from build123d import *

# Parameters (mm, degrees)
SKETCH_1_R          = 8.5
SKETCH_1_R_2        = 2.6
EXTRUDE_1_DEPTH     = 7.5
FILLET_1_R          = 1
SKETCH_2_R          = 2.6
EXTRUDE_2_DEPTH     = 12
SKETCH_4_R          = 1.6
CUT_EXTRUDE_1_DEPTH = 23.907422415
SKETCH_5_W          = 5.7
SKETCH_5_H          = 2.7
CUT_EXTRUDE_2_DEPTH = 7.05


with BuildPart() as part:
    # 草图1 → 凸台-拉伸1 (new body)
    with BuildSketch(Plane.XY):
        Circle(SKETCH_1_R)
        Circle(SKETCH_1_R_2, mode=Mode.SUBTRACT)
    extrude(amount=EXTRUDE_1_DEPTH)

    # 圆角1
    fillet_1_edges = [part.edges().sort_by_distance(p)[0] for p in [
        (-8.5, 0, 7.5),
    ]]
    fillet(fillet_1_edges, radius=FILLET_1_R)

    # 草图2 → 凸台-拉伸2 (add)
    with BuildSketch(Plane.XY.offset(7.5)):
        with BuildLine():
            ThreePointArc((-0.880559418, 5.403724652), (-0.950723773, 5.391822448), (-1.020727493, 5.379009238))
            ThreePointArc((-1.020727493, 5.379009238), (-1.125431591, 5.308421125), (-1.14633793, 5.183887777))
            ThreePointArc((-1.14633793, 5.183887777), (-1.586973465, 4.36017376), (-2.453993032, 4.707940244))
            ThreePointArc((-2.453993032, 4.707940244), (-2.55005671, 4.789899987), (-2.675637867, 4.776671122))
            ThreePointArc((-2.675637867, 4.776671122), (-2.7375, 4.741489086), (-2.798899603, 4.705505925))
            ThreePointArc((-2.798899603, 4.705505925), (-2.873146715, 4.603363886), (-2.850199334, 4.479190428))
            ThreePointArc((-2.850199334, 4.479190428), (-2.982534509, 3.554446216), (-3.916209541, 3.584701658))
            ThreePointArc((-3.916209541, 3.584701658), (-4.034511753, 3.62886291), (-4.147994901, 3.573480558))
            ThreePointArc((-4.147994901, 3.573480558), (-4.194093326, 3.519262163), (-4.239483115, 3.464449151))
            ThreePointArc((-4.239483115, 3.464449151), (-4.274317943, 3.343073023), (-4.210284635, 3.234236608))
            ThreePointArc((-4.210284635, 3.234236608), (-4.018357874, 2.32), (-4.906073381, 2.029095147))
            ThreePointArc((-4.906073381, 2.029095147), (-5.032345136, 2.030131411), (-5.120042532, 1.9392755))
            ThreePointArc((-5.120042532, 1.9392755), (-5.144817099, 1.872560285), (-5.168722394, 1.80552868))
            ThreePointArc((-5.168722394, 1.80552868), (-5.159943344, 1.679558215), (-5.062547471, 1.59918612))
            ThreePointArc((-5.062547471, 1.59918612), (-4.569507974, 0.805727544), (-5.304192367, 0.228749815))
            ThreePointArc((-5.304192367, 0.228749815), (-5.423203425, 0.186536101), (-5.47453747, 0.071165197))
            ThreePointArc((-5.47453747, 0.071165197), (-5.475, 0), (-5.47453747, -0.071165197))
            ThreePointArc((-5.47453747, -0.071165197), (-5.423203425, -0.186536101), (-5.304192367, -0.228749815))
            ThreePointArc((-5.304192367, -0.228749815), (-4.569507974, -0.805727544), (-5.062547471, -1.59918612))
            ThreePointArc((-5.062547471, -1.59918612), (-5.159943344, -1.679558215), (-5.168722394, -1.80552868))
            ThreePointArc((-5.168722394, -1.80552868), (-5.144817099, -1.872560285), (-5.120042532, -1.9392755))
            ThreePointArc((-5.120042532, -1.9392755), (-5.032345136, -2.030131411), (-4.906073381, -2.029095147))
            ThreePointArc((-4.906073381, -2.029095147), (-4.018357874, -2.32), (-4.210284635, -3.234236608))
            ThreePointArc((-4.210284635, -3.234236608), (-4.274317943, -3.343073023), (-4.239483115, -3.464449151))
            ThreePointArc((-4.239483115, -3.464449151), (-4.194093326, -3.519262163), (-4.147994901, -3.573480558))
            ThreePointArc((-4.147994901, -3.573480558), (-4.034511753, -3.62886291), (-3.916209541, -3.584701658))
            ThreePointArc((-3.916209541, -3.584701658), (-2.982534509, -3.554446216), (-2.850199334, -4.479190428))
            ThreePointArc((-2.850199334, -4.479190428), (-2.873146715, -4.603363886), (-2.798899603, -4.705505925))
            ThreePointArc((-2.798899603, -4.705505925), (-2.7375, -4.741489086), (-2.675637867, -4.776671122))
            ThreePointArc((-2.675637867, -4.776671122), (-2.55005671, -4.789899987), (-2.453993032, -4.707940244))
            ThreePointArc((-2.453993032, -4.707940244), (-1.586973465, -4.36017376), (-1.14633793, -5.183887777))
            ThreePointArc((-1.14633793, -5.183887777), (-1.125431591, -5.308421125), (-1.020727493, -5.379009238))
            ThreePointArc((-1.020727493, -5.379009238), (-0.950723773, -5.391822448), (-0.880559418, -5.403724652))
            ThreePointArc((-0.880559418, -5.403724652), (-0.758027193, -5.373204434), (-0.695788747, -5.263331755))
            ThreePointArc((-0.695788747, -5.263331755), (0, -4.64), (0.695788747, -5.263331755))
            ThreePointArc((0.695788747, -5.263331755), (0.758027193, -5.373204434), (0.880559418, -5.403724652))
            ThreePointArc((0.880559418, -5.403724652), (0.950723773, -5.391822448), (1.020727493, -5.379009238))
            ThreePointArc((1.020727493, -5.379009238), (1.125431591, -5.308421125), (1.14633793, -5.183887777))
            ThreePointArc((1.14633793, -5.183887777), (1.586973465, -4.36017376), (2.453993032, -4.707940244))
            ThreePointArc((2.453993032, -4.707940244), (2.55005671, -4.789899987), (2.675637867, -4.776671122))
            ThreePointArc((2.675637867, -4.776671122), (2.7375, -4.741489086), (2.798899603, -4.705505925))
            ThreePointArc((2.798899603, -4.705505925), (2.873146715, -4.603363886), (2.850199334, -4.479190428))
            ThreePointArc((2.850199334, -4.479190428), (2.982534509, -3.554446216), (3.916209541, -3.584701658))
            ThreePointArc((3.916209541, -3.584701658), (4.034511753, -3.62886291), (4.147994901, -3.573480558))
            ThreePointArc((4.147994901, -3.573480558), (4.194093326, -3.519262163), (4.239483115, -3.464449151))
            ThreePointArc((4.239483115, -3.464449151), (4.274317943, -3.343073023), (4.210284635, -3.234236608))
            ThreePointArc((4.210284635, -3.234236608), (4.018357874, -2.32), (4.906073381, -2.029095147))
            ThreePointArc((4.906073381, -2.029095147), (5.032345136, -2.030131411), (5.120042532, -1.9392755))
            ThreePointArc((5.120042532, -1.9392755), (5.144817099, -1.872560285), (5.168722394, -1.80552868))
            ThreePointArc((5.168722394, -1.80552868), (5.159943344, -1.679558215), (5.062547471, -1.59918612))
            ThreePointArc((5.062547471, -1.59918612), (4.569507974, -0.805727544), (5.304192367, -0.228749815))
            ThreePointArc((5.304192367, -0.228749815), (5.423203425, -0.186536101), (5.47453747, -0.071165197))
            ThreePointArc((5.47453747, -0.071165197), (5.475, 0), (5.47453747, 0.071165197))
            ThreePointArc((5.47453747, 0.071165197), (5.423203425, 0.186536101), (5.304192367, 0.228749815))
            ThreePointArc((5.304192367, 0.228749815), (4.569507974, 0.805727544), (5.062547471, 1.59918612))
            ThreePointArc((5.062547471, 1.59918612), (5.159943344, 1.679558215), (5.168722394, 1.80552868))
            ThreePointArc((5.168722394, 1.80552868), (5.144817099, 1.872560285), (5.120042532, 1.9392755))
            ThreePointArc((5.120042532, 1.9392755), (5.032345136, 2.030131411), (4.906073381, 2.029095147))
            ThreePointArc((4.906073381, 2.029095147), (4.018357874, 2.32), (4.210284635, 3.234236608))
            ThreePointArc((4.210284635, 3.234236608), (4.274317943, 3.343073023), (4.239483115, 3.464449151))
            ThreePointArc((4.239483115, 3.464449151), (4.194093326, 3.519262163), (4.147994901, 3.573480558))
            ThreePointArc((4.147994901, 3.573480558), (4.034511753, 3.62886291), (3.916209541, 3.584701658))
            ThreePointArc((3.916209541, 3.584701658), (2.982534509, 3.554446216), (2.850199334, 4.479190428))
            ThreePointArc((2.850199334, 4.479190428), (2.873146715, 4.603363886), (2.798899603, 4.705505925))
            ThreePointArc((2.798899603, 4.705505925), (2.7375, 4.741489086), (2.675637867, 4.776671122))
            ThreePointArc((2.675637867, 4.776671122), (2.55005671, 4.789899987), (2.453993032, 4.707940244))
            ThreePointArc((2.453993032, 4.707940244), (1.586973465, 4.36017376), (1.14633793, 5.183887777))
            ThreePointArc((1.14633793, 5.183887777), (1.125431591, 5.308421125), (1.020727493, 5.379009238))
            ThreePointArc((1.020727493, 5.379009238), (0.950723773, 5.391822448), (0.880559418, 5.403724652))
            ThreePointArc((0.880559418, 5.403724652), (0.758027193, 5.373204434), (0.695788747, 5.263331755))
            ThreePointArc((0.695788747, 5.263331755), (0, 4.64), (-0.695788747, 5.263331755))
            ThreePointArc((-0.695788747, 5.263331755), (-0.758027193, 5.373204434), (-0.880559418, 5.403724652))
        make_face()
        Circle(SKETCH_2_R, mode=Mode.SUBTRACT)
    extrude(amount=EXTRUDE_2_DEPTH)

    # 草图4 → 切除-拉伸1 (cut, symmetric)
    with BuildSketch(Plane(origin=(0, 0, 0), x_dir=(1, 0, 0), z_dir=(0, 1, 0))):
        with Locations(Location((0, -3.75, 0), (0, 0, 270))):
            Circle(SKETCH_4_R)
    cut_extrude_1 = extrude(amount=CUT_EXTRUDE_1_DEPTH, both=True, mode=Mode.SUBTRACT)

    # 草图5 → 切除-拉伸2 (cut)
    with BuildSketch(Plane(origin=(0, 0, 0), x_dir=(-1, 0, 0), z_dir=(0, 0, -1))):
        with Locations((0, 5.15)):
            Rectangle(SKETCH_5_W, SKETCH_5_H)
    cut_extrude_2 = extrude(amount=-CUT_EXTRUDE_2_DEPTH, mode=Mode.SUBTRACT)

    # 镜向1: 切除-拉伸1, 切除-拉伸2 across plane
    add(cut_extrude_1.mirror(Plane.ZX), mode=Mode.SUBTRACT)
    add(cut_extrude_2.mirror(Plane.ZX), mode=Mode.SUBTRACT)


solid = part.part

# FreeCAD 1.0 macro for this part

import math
import FreeCAD as App
import Part
import Sketcher

V = App.Vector
Q = App.Units.Quantity


def edges_at(feature, points):
    """Names of the edges that pass closest to the given points."""
    edges = feature.Shape.Edges
    near = lambda p: min(range(len(edges)), key=lambda i: edges[i].distToShape(Part.Vertex(*p))[0])
    return sorted({f"Edge{near(p) + 1}" for p in points})

doc = App.newDocument("Part")
body = doc.addObject("PartDesign::Body", "Body")

# Sketch on XY plane
sketch1 = doc.addObject("Sketcher::SketchObject", "Sketch")
body.addObject(sketch1)
sketch1.AttachmentSupport = (doc.XY_Plane, [""])
sketch1.MapMode = "FlatFace"
sketch1.addGeometry(Part.Circle(V(0, 0, 0), V(0, 0, 1), 8.5), False)
sketch1.addGeometry(Part.Circle(V(0, 0, 0), V(0, 0, 1), 2.6), False)
sketch1.addConstraint(Sketcher.Constraint("Coincident", 0, 3, -1, 1))
sketch1.addConstraint(Sketcher.Constraint("Coincident", 1, 3, -1, 1))
sketch1.addConstraint(Sketcher.Constraint("Diameter", 0, Q("17 mm")))
sketch1.addConstraint(Sketcher.Constraint("Diameter", 1, Q("5.2 mm")))
pad1 = doc.addObject("PartDesign::Pad", "Pad")
body.addObject(pad1)
pad1.Profile = sketch1
pad1.Length = 7.5
doc.recompute()

fillet = doc.addObject("PartDesign::Fillet", "Fillet")
body.addObject(fillet)
fillet.Base = (pad1, edges_at(pad1, [(-8.5, 0, 7.5)]))
fillet.Radius = 1

# Sketch on XY plane
sketch2 = doc.addObject("Sketcher::SketchObject", "Sketch001")
body.addObject(sketch2)
sketch2.AttachmentSupport = (doc.XY_Plane, [""])
sketch2.MapMode = "FlatFace"
sketch2.AttachmentOffset = App.Placement(V(0, 0, 7.5), App.Rotation())
sketch2.addGeometry(Part.ArcOfCircle(Part.Circle(V(-0.000001, 0.000003, 0), V(0, 0, 1), 5.474997), math.radians(99.255236), math.radians(100.744764)), False)
sketch2.addGeometry(Part.ArcOfCircle(Part.Circle(V(-0.990898, 5.221814, 0), V(0, 0, 1), 0.16), math.radians(100.744763), math.radians(193.712004)), False)
sketch2.addGeometry(Part.ArcOfCircle(Part.Circle(V(-1.826388, 5.017959, 0), V(0, 0, 1), 0.7), math.radians(-153.712004), math.radians(13.712004)), False)
sketch2.addGeometry(Part.ArcOfCircle(Part.Circle(V(-2.597446, 4.637079, 0), V(0, 0, 1), 0.16), math.radians(26.287996), math.radians(119.255236)), False)
sketch2.addGeometry(Part.ArcOfCircle(Part.Circle(V(-0.000001, 0.000002, 0), V(0, 0, 1), 5.474998), math.radians(119.255236), math.radians(120.744764)), False)
sketch2.addGeometry(Part.ArcOfCircle(Part.Circle(V(-2.717105, 4.567993, 0), V(0, 0, 1), 0.16), math.radians(120.744763), math.radians(213.712004)), False)
sketch2.addGeometry(Part.ArcOfCircle(Part.Circle(V(-3.432486, 4.090677, 0), V(0, 0, 1), 0.7), math.radians(-133.712004), math.radians(33.712004)), False)
sketch2.addGeometry(Part.ArcOfCircle(Part.Circle(V(-4.026775, 3.46905, 0), V(0, 0, 1), 0.16), math.radians(46.287996), math.radians(139.255236)), False)
sketch2.addGeometry(Part.ArcOfCircle(Part.Circle(V(0, 0, 0), V(0, 0, 1), 5.475001), math.radians(139.255236), math.radians(140.744763)), False)
sketch2.addGeometry(Part.ArcOfCircle(Part.Circle(V(-4.11559, 3.363205, 0), V(0, 0, 1), 0.16), math.radians(140.744763), math.radians(233.712004)), False)
sketch2.addGeometry(Part.ArcOfCircle(Part.Circle(V(-4.624576, 2.67, 0), V(0, 0, 1), 0.7), math.radians(-113.712004), math.radians(53.712004)), False)
sketch2.addGeometry(Part.ArcOfCircle(Part.Circle(V(-4.970416, 1.882603, 0), V(0, 0, 1), 0.16), math.radians(66.287995), math.radians(159.255237)), False)
sketch2.addGeometry(Part.ArcOfCircle(Part.Circle(V(-0.000006, 0.000002, 0), V(0, 0, 1), 5.474994), math.radians(159.255235), math.radians(160.744764)), False)
sketch2.addGeometry(Part.ArcOfCircle(Part.Circle(V(-5.017673, 1.752764, 0), V(0, 0, 1), 0.16), math.radians(160.744764), math.radians(253.712004)), False)
sketch2.addGeometry(Part.ArcOfCircle(Part.Circle(V(-5.258873, 0.927281, 0), V(0, 0, 1), 0.7), math.radians(-93.712004), math.radians(73.712004)), False)
sketch2.addGeometry(Part.ArcOfCircle(Part.Circle(V(-5.314551, 0.069085, 0), V(0, 0, 1), 0.16), math.radians(86.287996), math.radians(179.255236)), False)
sketch2.addGeometry(Part.ArcOfCircle(Part.Circle(V(-0.000005, 0, 0), V(0, 0, 1), 5.474995), math.radians(179.255236), math.radians(180.744764)), False)
sketch2.addGeometry(Part.ArcOfCircle(Part.Circle(V(-5.314551, -0.069085, 0), V(0, 0, 1), 0.16), math.radians(-179.255236), math.radians(-86.287996)), False)
sketch2.addGeometry(Part.ArcOfCircle(Part.Circle(V(-5.258873, -0.927281, 0), V(0, 0, 1), 0.7), math.radians(-73.712004), math.radians(93.712004)), False)
sketch2.addGeometry(Part.ArcOfCircle(Part.Circle(V(-5.017673, -1.752764, 0), V(0, 0, 1), 0.16), math.radians(106.287996), math.radians(199.255236)), False)
sketch2.addGeometry(Part.ArcOfCircle(Part.Circle(V(-0.000006, -0.000002, 0), V(0, 0, 1), 5.474994), math.radians(-160.744764), math.radians(-159.255235)), False)
sketch2.addGeometry(Part.ArcOfCircle(Part.Circle(V(-4.970416, -1.882603, 0), V(0, 0, 1), 0.16), math.radians(-159.255237), math.radians(-66.287995)), False)
sketch2.addGeometry(Part.ArcOfCircle(Part.Circle(V(-4.624576, -2.67, 0), V(0, 0, 1), 0.7), math.radians(-53.712004), math.radians(113.712004)), False)
sketch2.addGeometry(Part.ArcOfCircle(Part.Circle(V(-4.11559, -3.363205, 0), V(0, 0, 1), 0.16), math.radians(126.287996), math.radians(219.255237)), False)
sketch2.addGeometry(Part.ArcOfCircle(Part.Circle(V(0, 0, 0), V(0, 0, 1), 5.475001), math.radians(-140.744763), math.radians(-139.255236)), False)
sketch2.addGeometry(Part.ArcOfCircle(Part.Circle(V(-4.026775, -3.46905, 0), V(0, 0, 1), 0.16), math.radians(-139.255236), math.radians(-46.287996)), False)
sketch2.addGeometry(Part.ArcOfCircle(Part.Circle(V(-3.432486, -4.090677, 0), V(0, 0, 1), 0.7), math.radians(-33.712004), math.radians(133.712004)), False)
sketch2.addGeometry(Part.ArcOfCircle(Part.Circle(V(-2.717105, -4.567993, 0), V(0, 0, 1), 0.16), math.radians(146.287996), math.radians(239.255237)), False)
sketch2.addGeometry(Part.ArcOfCircle(Part.Circle(V(-0.000001, -0.000002, 0), V(0, 0, 1), 5.474998), math.radians(-120.744764), math.radians(-119.255236)), False)
sketch2.addGeometry(Part.ArcOfCircle(Part.Circle(V(-2.597446, -4.637079, 0), V(0, 0, 1), 0.16), math.radians(-119.255236), math.radians(-26.287996)), False)
sketch2.addGeometry(Part.ArcOfCircle(Part.Circle(V(-1.826388, -5.017959, 0), V(0, 0, 1), 0.7), math.radians(-13.712004), math.radians(153.712004)), False)
sketch2.addGeometry(Part.ArcOfCircle(Part.Circle(V(-0.990898, -5.221814, 0), V(0, 0, 1), 0.16), math.radians(166.287996), math.radians(259.255237)), False)
sketch2.addGeometry(Part.ArcOfCircle(Part.Circle(V(-0.000001, -0.000003, 0), V(0, 0, 1), 5.474997), math.radians(-100.744764), math.radians(-99.255236)), False)
sketch2.addGeometry(Part.ArcOfCircle(Part.Circle(V(-0.854826, -5.245808, 0), V(0, 0, 1), 0.16), math.radians(-99.255237), math.radians(-6.287996)), False)
sketch2.addGeometry(Part.ArcOfCircle(Part.Circle(V(0, -5.34, 0), V(0, 0, 1), 0.7), math.radians(6.287996), math.radians(173.712004)), False)
sketch2.addGeometry(Part.ArcOfCircle(Part.Circle(V(0.854826, -5.245808, 0), V(0, 0, 1), 0.16), math.radians(-173.712004), math.radians(-80.744763)), False)
sketch2.addGeometry(Part.ArcOfCircle(Part.Circle(V(0.000001, -0.000003, 0), V(0, 0, 1), 5.474997), math.radians(-80.744764), math.radians(-79.255236)), False)
sketch2.addGeometry(Part.ArcOfCircle(Part.Circle(V(0.990898, -5.221814, 0), V(0, 0, 1), 0.16), math.radians(-79.255237), math.radians(13.712004)), False)
sketch2.addGeometry(Part.ArcOfCircle(Part.Circle(V(1.826388, -5.017959, 0), V(0, 0, 1), 0.7), math.radians(26.287996), math.radians(193.712004)), False)
sketch2.addGeometry(Part.ArcOfCircle(Part.Circle(V(2.597446, -4.637079, 0), V(0, 0, 1), 0.16), math.radians(-153.712004), math.radians(-60.744764)), False)
sketch2.addGeometry(Part.ArcOfCircle(Part.Circle(V(0.000001, -0.000002, 0), V(0, 0, 1), 5.474998), math.radians(-60.744764), math.radians(-59.255236)), False)
sketch2.addGeometry(Part.ArcOfCircle(Part.Circle(V(2.717105, -4.567993, 0), V(0, 0, 1), 0.16), math.radians(-59.255237), math.radians(33.712004)), False)
sketch2.addGeometry(Part.ArcOfCircle(Part.Circle(V(3.432486, -4.090677, 0), V(0, 0, 1), 0.7), math.radians(46.287996), math.radians(213.712004)), False)
sketch2.addGeometry(Part.ArcOfCircle(Part.Circle(V(4.026775, -3.46905, 0), V(0, 0, 1), 0.16), math.radians(-133.712004), math.radians(-40.744764)), False)
sketch2.addGeometry(Part.ArcOfCircle(Part.Circle(V(0, 0, 0), V(0, 0, 1), 5.475001), math.radians(-40.744764), math.radians(-39.255237)), False)
sketch2.addGeometry(Part.ArcOfCircle(Part.Circle(V(4.11559, -3.363205, 0), V(0, 0, 1), 0.16), math.radians(-39.255237), math.radians(53.712004)), False)
sketch2.addGeometry(Part.ArcOfCircle(Part.Circle(V(4.624576, -2.67, 0), V(0, 0, 1), 0.7), math.radians(66.287996), math.radians(233.712004)), False)
sketch2.addGeometry(Part.ArcOfCircle(Part.Circle(V(4.970416, -1.882603, 0), V(0, 0, 1), 0.16), math.radians(-113.712005), math.radians(-20.744763)), False)
sketch2.addGeometry(Part.ArcOfCircle(Part.Circle(V(0.000006, -0.000002, 0), V(0, 0, 1), 5.474994), math.radians(-20.744765), math.radians(-19.255236)), False)
sketch2.addGeometry(Part.ArcOfCircle(Part.Circle(V(5.017673, -1.752764, 0), V(0, 0, 1), 0.16), math.radians(-19.255236), math.radians(73.712004)), False)
sketch2.addGeometry(Part.ArcOfCircle(Part.Circle(V(5.258873, -0.927281, 0), V(0, 0, 1), 0.7), math.radians(86.287996), math.radians(253.712004)), False)
sketch2.addGeometry(Part.ArcOfCircle(Part.Circle(V(5.314551, -0.069085, 0), V(0, 0, 1), 0.16), math.radians(-93.712004), math.radians(-0.744764)), False)
sketch2.addGeometry(Part.ArcOfCircle(Part.Circle(V(0.000005, 0, 0), V(0, 0, 1), 5.474995), math.radians(-0.744764), math.radians(0.744764)), False)
sketch2.addGeometry(Part.ArcOfCircle(Part.Circle(V(5.314551, 0.069085, 0), V(0, 0, 1), 0.16), math.radians(0.744764), math.radians(93.712004)), False)
sketch2.addGeometry(Part.ArcOfCircle(Part.Circle(V(5.258873, 0.927281, 0), V(0, 0, 1), 0.7), math.radians(106.287996), math.radians(273.712004)), False)
sketch2.addGeometry(Part.ArcOfCircle(Part.Circle(V(5.017673, 1.752764, 0), V(0, 0, 1), 0.16), math.radians(-73.712004), math.radians(19.255236)), False)
sketch2.addGeometry(Part.ArcOfCircle(Part.Circle(V(0.000006, 0.000002, 0), V(0, 0, 1), 5.474994), math.radians(19.255236), math.radians(20.744765)), False)
sketch2.addGeometry(Part.ArcOfCircle(Part.Circle(V(4.970416, 1.882603, 0), V(0, 0, 1), 0.16), math.radians(20.744763), math.radians(113.712005)), False)
sketch2.addGeometry(Part.ArcOfCircle(Part.Circle(V(4.624576, 2.67, 0), V(0, 0, 1), 0.7), math.radians(126.287996), math.radians(293.712004)), False)
sketch2.addGeometry(Part.ArcOfCircle(Part.Circle(V(4.11559, 3.363205, 0), V(0, 0, 1), 0.16), math.radians(-53.712004), math.radians(39.255237)), False)
sketch2.addGeometry(Part.ArcOfCircle(Part.Circle(V(0, 0, 0), V(0, 0, 1), 5.475001), math.radians(39.255237), math.radians(40.744764)), False)
sketch2.addGeometry(Part.ArcOfCircle(Part.Circle(V(4.026775, 3.46905, 0), V(0, 0, 1), 0.16), math.radians(40.744764), math.radians(133.712004)), False)
sketch2.addGeometry(Part.ArcOfCircle(Part.Circle(V(3.432486, 4.090677, 0), V(0, 0, 1), 0.7), math.radians(146.287996), math.radians(313.712004)), False)
sketch2.addGeometry(Part.ArcOfCircle(Part.Circle(V(2.717105, 4.567993, 0), V(0, 0, 1), 0.16), math.radians(-33.712004), math.radians(59.255237)), False)
sketch2.addGeometry(Part.ArcOfCircle(Part.Circle(V(0.000001, 0.000002, 0), V(0, 0, 1), 5.474998), math.radians(59.255236), math.radians(60.744764)), False)
sketch2.addGeometry(Part.ArcOfCircle(Part.Circle(V(2.597446, 4.637079, 0), V(0, 0, 1), 0.16), math.radians(60.744764), math.radians(153.712004)), False)
sketch2.addGeometry(Part.ArcOfCircle(Part.Circle(V(1.826388, 5.017959, 0), V(0, 0, 1), 0.7), math.radians(166.287996), math.radians(333.712004)), False)
sketch2.addGeometry(Part.ArcOfCircle(Part.Circle(V(0.990898, 5.221814, 0), V(0, 0, 1), 0.16), math.radians(-13.712004), math.radians(79.255237)), False)
sketch2.addGeometry(Part.ArcOfCircle(Part.Circle(V(0.000001, 0.000003, 0), V(0, 0, 1), 5.474997), math.radians(79.255236), math.radians(80.744764)), False)
sketch2.addGeometry(Part.ArcOfCircle(Part.Circle(V(0.854826, 5.245808, 0), V(0, 0, 1), 0.16), math.radians(80.744763), math.radians(173.712004)), False)
sketch2.addGeometry(Part.ArcOfCircle(Part.Circle(V(0, 5.34, 0), V(0, 0, 1), 0.7), math.radians(-173.712004), math.radians(-6.287996)), False)
sketch2.addGeometry(Part.ArcOfCircle(Part.Circle(V(-0.854826, 5.245808, 0), V(0, 0, 1), 0.16), math.radians(6.287996), math.radians(99.255237)), False)
sketch2.addGeometry(Part.Circle(V(0, 0, 0), V(0, 0, 1), 2.6), False)
sketch2.addConstraint(Sketcher.Constraint("Tangent", 0, 2, 1, 1))
sketch2.addConstraint(Sketcher.Constraint("Tangent", 1, 2, 2, 2))
sketch2.addConstraint(Sketcher.Constraint("Tangent", 2, 1, 3, 1))
sketch2.addConstraint(Sketcher.Constraint("Tangent", 3, 2, 4, 1))
sketch2.addConstraint(Sketcher.Constraint("Tangent", 4, 2, 5, 1))
sketch2.addConstraint(Sketcher.Constraint("Tangent", 5, 2, 6, 2))
sketch2.addConstraint(Sketcher.Constraint("Tangent", 6, 1, 7, 1))
sketch2.addConstraint(Sketcher.Constraint("Tangent", 7, 2, 8, 1))
sketch2.addConstraint(Sketcher.Constraint("Tangent", 8, 2, 9, 1))
sketch2.addConstraint(Sketcher.Constraint("Tangent", 9, 2, 10, 2))
sketch2.addConstraint(Sketcher.Constraint("Tangent", 10, 1, 11, 1))
sketch2.addConstraint(Sketcher.Constraint("Tangent", 11, 2, 12, 1))
sketch2.addConstraint(Sketcher.Constraint("Tangent", 12, 2, 13, 1))
sketch2.addConstraint(Sketcher.Constraint("Tangent", 13, 2, 14, 2))
sketch2.addConstraint(Sketcher.Constraint("Tangent", 14, 1, 15, 1))
sketch2.addConstraint(Sketcher.Constraint("Tangent", 15, 2, 16, 1))
sketch2.addConstraint(Sketcher.Constraint("Tangent", 16, 2, 17, 1))
sketch2.addConstraint(Sketcher.Constraint("Tangent", 17, 2, 18, 2))
sketch2.addConstraint(Sketcher.Constraint("Tangent", 18, 1, 19, 1))
sketch2.addConstraint(Sketcher.Constraint("Tangent", 19, 2, 20, 1))
sketch2.addConstraint(Sketcher.Constraint("Tangent", 20, 2, 21, 1))
sketch2.addConstraint(Sketcher.Constraint("Tangent", 21, 2, 22, 2))
sketch2.addConstraint(Sketcher.Constraint("Tangent", 22, 1, 23, 1))
sketch2.addConstraint(Sketcher.Constraint("Tangent", 23, 2, 24, 1))
sketch2.addConstraint(Sketcher.Constraint("Tangent", 24, 2, 25, 1))
sketch2.addConstraint(Sketcher.Constraint("Tangent", 25, 2, 26, 2))
sketch2.addConstraint(Sketcher.Constraint("Tangent", 26, 1, 27, 1))
sketch2.addConstraint(Sketcher.Constraint("Tangent", 27, 2, 28, 1))
sketch2.addConstraint(Sketcher.Constraint("Tangent", 28, 2, 29, 1))
sketch2.addConstraint(Sketcher.Constraint("Tangent", 29, 2, 30, 2))
sketch2.addConstraint(Sketcher.Constraint("Tangent", 30, 1, 31, 1))
sketch2.addConstraint(Sketcher.Constraint("Tangent", 31, 2, 32, 1))
sketch2.addConstraint(Sketcher.Constraint("Tangent", 32, 2, 33, 1))
sketch2.addConstraint(Sketcher.Constraint("Tangent", 33, 2, 34, 2))
sketch2.addConstraint(Sketcher.Constraint("Tangent", 34, 1, 35, 1))
sketch2.addConstraint(Sketcher.Constraint("Tangent", 35, 2, 36, 1))
sketch2.addConstraint(Sketcher.Constraint("Tangent", 36, 2, 37, 1))
sketch2.addConstraint(Sketcher.Constraint("Tangent", 37, 2, 38, 2))
sketch2.addConstraint(Sketcher.Constraint("Tangent", 38, 1, 39, 1))
sketch2.addConstraint(Sketcher.Constraint("Tangent", 39, 2, 40, 1))
sketch2.addConstraint(Sketcher.Constraint("Tangent", 40, 2, 41, 1))
sketch2.addConstraint(Sketcher.Constraint("Tangent", 41, 2, 42, 2))
sketch2.addConstraint(Sketcher.Constraint("Tangent", 42, 1, 43, 1))
sketch2.addConstraint(Sketcher.Constraint("Tangent", 43, 2, 44, 1))
sketch2.addConstraint(Sketcher.Constraint("Tangent", 44, 2, 45, 1))
sketch2.addConstraint(Sketcher.Constraint("Tangent", 45, 2, 46, 2))
sketch2.addConstraint(Sketcher.Constraint("Tangent", 46, 1, 47, 1))
sketch2.addConstraint(Sketcher.Constraint("Tangent", 47, 2, 48, 1))
sketch2.addConstraint(Sketcher.Constraint("Tangent", 48, 2, 49, 1))
sketch2.addConstraint(Sketcher.Constraint("Tangent", 49, 2, 50, 2))
sketch2.addConstraint(Sketcher.Constraint("Tangent", 50, 1, 51, 1))
sketch2.addConstraint(Sketcher.Constraint("Tangent", 51, 2, 52, 1))
sketch2.addConstraint(Sketcher.Constraint("Tangent", 52, 2, 53, 1))
sketch2.addConstraint(Sketcher.Constraint("Tangent", 53, 2, 54, 2))
sketch2.addConstraint(Sketcher.Constraint("Tangent", 54, 1, 55, 1))
sketch2.addConstraint(Sketcher.Constraint("Tangent", 55, 2, 56, 1))
sketch2.addConstraint(Sketcher.Constraint("Tangent", 56, 2, 57, 1))
sketch2.addConstraint(Sketcher.Constraint("Tangent", 57, 2, 58, 2))
sketch2.addConstraint(Sketcher.Constraint("Tangent", 58, 1, 59, 1))
sketch2.addConstraint(Sketcher.Constraint("Tangent", 59, 2, 60, 1))
sketch2.addConstraint(Sketcher.Constraint("Tangent", 60, 2, 61, 1))
sketch2.addConstraint(Sketcher.Constraint("Tangent", 61, 2, 62, 2))
sketch2.addConstraint(Sketcher.Constraint("Tangent", 62, 1, 63, 1))
sketch2.addConstraint(Sketcher.Constraint("Tangent", 63, 2, 64, 1))
sketch2.addConstraint(Sketcher.Constraint("Tangent", 64, 2, 65, 1))
sketch2.addConstraint(Sketcher.Constraint("Tangent", 65, 2, 66, 2))
sketch2.addConstraint(Sketcher.Constraint("Tangent", 66, 1, 67, 1))
sketch2.addConstraint(Sketcher.Constraint("Tangent", 67, 2, 68, 1))
sketch2.addConstraint(Sketcher.Constraint("Tangent", 68, 2, 69, 1))
sketch2.addConstraint(Sketcher.Constraint("Tangent", 69, 2, 70, 2))
sketch2.addConstraint(Sketcher.Constraint("Tangent", 70, 1, 71, 1))
sketch2.addConstraint(Sketcher.Constraint("Tangent", 71, 2, 0, 1))
sketch2.addConstraint(Sketcher.Constraint("Coincident", 0, 3, -1, 1))
sketch2.addConstraint(Sketcher.Constraint("Coincident", 4, 3, -1, 1))
sketch2.addConstraint(Sketcher.Constraint("Coincident", 8, 3, -1, 1))
sketch2.addConstraint(Sketcher.Constraint("Coincident", 12, 3, -1, 1))
sketch2.addConstraint(Sketcher.Constraint("Coincident", 16, 3, -1, 1))
sketch2.addConstraint(Sketcher.Constraint("Coincident", 20, 3, -1, 1))
sketch2.addConstraint(Sketcher.Constraint("Coincident", 24, 3, -1, 1))
sketch2.addConstraint(Sketcher.Constraint("Coincident", 28, 3, -1, 1))
sketch2.addConstraint(Sketcher.Constraint("Coincident", 32, 3, -1, 1))
sketch2.addConstraint(Sketcher.Constraint("Coincident", 36, 3, -1, 1))
sketch2.addConstraint(Sketcher.Constraint("Coincident", 40, 3, -1, 1))
sketch2.addConstraint(Sketcher.Constraint("Coincident", 44, 3, -1, 1))
sketch2.addConstraint(Sketcher.Constraint("Coincident", 48, 3, -1, 1))
sketch2.addConstraint(Sketcher.Constraint("Coincident", 52, 3, -1, 1))
sketch2.addConstraint(Sketcher.Constraint("Coincident", 56, 3, -1, 1))
sketch2.addConstraint(Sketcher.Constraint("Coincident", 60, 3, -1, 1))
sketch2.addConstraint(Sketcher.Constraint("Coincident", 64, 3, -1, 1))
sketch2.addConstraint(Sketcher.Constraint("Coincident", 68, 3, -1, 1))
sketch2.addConstraint(Sketcher.Constraint("Coincident", 72, 3, -1, 1))
sketch2.addConstraint(Sketcher.Constraint("Equal", 1, 3))
sketch2.addConstraint(Sketcher.Constraint("Equal", 0, 4))
sketch2.addConstraint(Sketcher.Constraint("Equal", 3, 5))
sketch2.addConstraint(Sketcher.Constraint("Equal", 2, 6))
sketch2.addConstraint(Sketcher.Constraint("Equal", 5, 7))
sketch2.addConstraint(Sketcher.Constraint("Equal", 7, 9))
sketch2.addConstraint(Sketcher.Constraint("Equal", 6, 10))
sketch2.addConstraint(Sketcher.Constraint("Equal", 9, 11))
sketch2.addConstraint(Sketcher.Constraint("Equal", 11, 13))
sketch2.addConstraint(Sketcher.Constraint("Equal", 10, 14))
sketch2.addConstraint(Sketcher.Constraint("Equal", 13, 15))
sketch2.addConstraint(Sketcher.Constraint("Equal", 12, 16))
sketch2.addConstraint(Sketcher.Constraint("Equal", 15, 17))
sketch2.addConstraint(Sketcher.Constraint("Equal", 14, 18))
sketch2.addConstraint(Sketcher.Constraint("Equal", 17, 19))
sketch2.addConstraint(Sketcher.Constraint("Equal", 16, 20))
sketch2.addConstraint(Sketcher.Constraint("Equal", 19, 21))
sketch2.addConstraint(Sketcher.Constraint("Equal", 18, 22))
sketch2.addConstraint(Sketcher.Constraint("Equal", 21, 23))
sketch2.addConstraint(Sketcher.Constraint("Equal", 8, 24))
sketch2.addConstraint(Sketcher.Constraint("Equal", 23, 25))
sketch2.addConstraint(Sketcher.Constraint("Equal", 22, 26))
sketch2.addConstraint(Sketcher.Constraint("Equal", 25, 27))
sketch2.addConstraint(Sketcher.Constraint("Equal", 4, 28))
sketch2.addConstraint(Sketcher.Constraint("Equal", 27, 29))
sketch2.addConstraint(Sketcher.Constraint("Equal", 26, 30))
sketch2.addConstraint(Sketcher.Constraint("Equal", 29, 31))
sketch2.addConstraint(Sketcher.Constraint("Equal", 28, 32))
sketch2.addConstraint(Sketcher.Constraint("Equal", 31, 33))
sketch2.addConstraint(Sketcher.Constraint("Equal", 30, 34))
sketch2.addConstraint(Sketcher.Constraint("Equal", 33, 35))
sketch2.addConstraint(Sketcher.Constraint("Equal", 32, 36))
sketch2.addConstraint(Sketcher.Constraint("Equal", 35, 37))
sketch2.addConstraint(Sketcher.Constraint("Equal", 34, 38))
sketch2.addConstraint(Sketcher.Constraint("Equal", 37, 39))
sketch2.addConstraint(Sketcher.Constraint("Equal", 36, 40))
sketch2.addConstraint(Sketcher.Constraint("Equal", 39, 41))
sketch2.addConstraint(Sketcher.Constraint("Equal", 38, 42))
sketch2.addConstraint(Sketcher.Constraint("Equal", 41, 43))
sketch2.addConstraint(Sketcher.Constraint("Equal", 24, 44))
sketch2.addConstraint(Sketcher.Constraint("Equal", 43, 45))
sketch2.addConstraint(Sketcher.Constraint("Equal", 42, 46))
sketch2.addConstraint(Sketcher.Constraint("Equal", 45, 47))
sketch2.addConstraint(Sketcher.Constraint("Equal", 20, 48))
sketch2.addConstraint(Sketcher.Constraint("Equal", 47, 49))
sketch2.addConstraint(Sketcher.Constraint("Equal", 46, 50))
sketch2.addConstraint(Sketcher.Constraint("Equal", 49, 51))
sketch2.addConstraint(Sketcher.Constraint("Equal", 48, 52))
sketch2.addConstraint(Sketcher.Constraint("Equal", 51, 53))
sketch2.addConstraint(Sketcher.Constraint("Equal", 50, 54))
sketch2.addConstraint(Sketcher.Constraint("Equal", 53, 55))
sketch2.addConstraint(Sketcher.Constraint("Equal", 52, 56))
sketch2.addConstraint(Sketcher.Constraint("Equal", 55, 57))
sketch2.addConstraint(Sketcher.Constraint("Equal", 54, 58))
sketch2.addConstraint(Sketcher.Constraint("Equal", 57, 59))
sketch2.addConstraint(Sketcher.Constraint("Equal", 44, 60))
sketch2.addConstraint(Sketcher.Constraint("Equal", 59, 61))
sketch2.addConstraint(Sketcher.Constraint("Equal", 58, 62))
sketch2.addConstraint(Sketcher.Constraint("Equal", 61, 63))
sketch2.addConstraint(Sketcher.Constraint("Equal", 40, 64))
sketch2.addConstraint(Sketcher.Constraint("Equal", 63, 65))
sketch2.addConstraint(Sketcher.Constraint("Equal", 62, 66))
sketch2.addConstraint(Sketcher.Constraint("Equal", 65, 67))
sketch2.addConstraint(Sketcher.Constraint("Equal", 64, 68))
sketch2.addConstraint(Sketcher.Constraint("Equal", 67, 69))
sketch2.addConstraint(Sketcher.Constraint("Equal", 66, 70))
sketch2.addConstraint(Sketcher.Constraint("Equal", 69, 71))
sketch2.addConstraint(Sketcher.Constraint("Symmetric", 2, 3, 38, 3, -1, 1))
sketch2.addConstraint(Sketcher.Constraint("Symmetric", 6, 3, 42, 3, -1, 1))
sketch2.addConstraint(Sketcher.Constraint("Symmetric", 10, 3, 46, 3, -1, 1))
sketch2.addConstraint(Sketcher.Constraint("Symmetric", 14, 3, 50, 3, -1, 1))
sketch2.addConstraint(Sketcher.Constraint("Symmetric", 18, 3, 54, 3, -1, 1))
sketch2.addConstraint(Sketcher.Constraint("Symmetric", 22, 3, 58, 3, -1, 1))
sketch2.addConstraint(Sketcher.Constraint("Symmetric", 26, 3, 62, 3, -1, 1))
sketch2.addConstraint(Sketcher.Constraint("Symmetric", 30, 3, 66, 3, -1, 1))
sketch2.addConstraint(Sketcher.Constraint("Symmetric", 34, 3, 70, 3, -1, 1))
sketch2.addConstraint(Sketcher.Constraint("Symmetric", 30, 3, 38, 3, -2))
sketch2.addConstraint(Sketcher.Constraint("Symmetric", 26, 3, 42, 3, -2))
sketch2.addConstraint(Sketcher.Constraint("Symmetric", 22, 3, 46, 3, -2))
sketch2.addConstraint(Sketcher.Constraint("Symmetric", 18, 3, 50, 3, -2))
sketch2.addConstraint(Sketcher.Constraint("PointOnObject", 34, 3, -2))
sketch2.addConstraint(Sketcher.Constraint("Diameter", 72, Q("5.2 mm")))
sketch2.addConstraint(Sketcher.Constraint("Radius", 2, Q("0.7 mm")))
sketch2.addConstraint(Sketcher.Constraint("Radius", 1, Q("0.16 mm")))
sketch2.addConstraint(Sketcher.Constraint("Radius", 8, Q("5.475001 mm")))
sketch2.addConstraint(Sketcher.Constraint("DistanceY", -1, 1, 10, 3, Q("2.67 mm")))
sketch2.addConstraint(Sketcher.Constraint("DistanceY", 34, 3, -1, 1, Q("5.34 mm")))
sketch2.addConstraint(Sketcher.Constraint("Radius", 0, Q("5.474997 mm")))
sketch2.addConstraint(Sketcher.Constraint("Radius", 12, Q("5.474994 mm")))
sketch2.addConstraint(Sketcher.Constraint("DistanceX", 1, 3, -1, 1, Q("0.990898 mm")))
sketch2.addConstraint(Sketcher.Constraint("DistanceX", 4, 2, -1, 1, Q("2.7989 mm")))
sketch2.addConstraint(Sketcher.Constraint("DistanceX", 5, 2, -1, 1, Q("2.850199 mm")))
sketch2.addConstraint(Sketcher.Constraint("DistanceY", -1, 1, 2, 3, Q("5.017959 mm")))
sketch2.addConstraint(Sketcher.Constraint("DistanceX", 9, 3, -1, 1, Q("4.11559 mm")))
sketch2.addConstraint(Sketcher.Constraint("DistanceY", -1, 1, 14, 3, Q("0.927281 mm")))
sketch2.addConstraint(Sketcher.Constraint("DistanceY", -1, 1, 12, 2, Q("1.805529 mm")))
pad2 = doc.addObject("PartDesign::Pad", "Pad001")
body.addObject(pad2)
pad2.Profile = sketch2
pad2.Length = 12

# Sketch on XZ plane
sketch3 = doc.addObject("Sketcher::SketchObject", "Sketch002")
body.addObject(sketch3)
sketch3.AttachmentSupport = (doc.XZ_Plane, [""])
sketch3.MapMode = "FlatFace"
sketch3.addGeometry(Part.Circle(V(0, 3.75, 0), V(0, 0, 1), 1.6), False)
sketch3.addConstraint(Sketcher.Constraint("PointOnObject", 0, 3, -2))
sketch3.addConstraint(Sketcher.Constraint("Diameter", 0, Q("3.2 mm")))
sketch3.addConstraint(Sketcher.Constraint("DistanceY", -1, 1, 0, 3, Q("3.75 mm")))
pocket1 = doc.addObject("PartDesign::Pocket", "Pocket")
body.addObject(pocket1)
pocket1.Profile = sketch3
pocket1.Length = 47.814845
pocket1.Midplane = True

# Sketch on XY plane
sketch4 = doc.addObject("Sketcher::SketchObject", "Sketch003")
body.addObject(sketch4)
sketch4.AttachmentSupport = (doc.XY_Plane, [""])
sketch4.MapMode = "FlatFace"
sketch4.addGeometry(Part.LineSegment(V(2.85, 6.5, 0), V(2.85, 3.8, 0)), False)
sketch4.addGeometry(Part.LineSegment(V(2.85, 3.8, 0), V(-2.85, 3.8, 0)), False)
sketch4.addGeometry(Part.LineSegment(V(-2.85, 3.8, 0), V(-2.85, 6.5, 0)), False)
sketch4.addGeometry(Part.LineSegment(V(-2.85, 6.5, 0), V(2.85, 6.5, 0)), False)
sketch4.addConstraint(Sketcher.Constraint("Coincident", 0, 2, 1, 1))
sketch4.addConstraint(Sketcher.Constraint("Coincident", 1, 2, 2, 1))
sketch4.addConstraint(Sketcher.Constraint("Coincident", 2, 2, 3, 1))
sketch4.addConstraint(Sketcher.Constraint("Coincident", 3, 2, 0, 1))
sketch4.addConstraint(Sketcher.Constraint("Vertical", 0))
sketch4.addConstraint(Sketcher.Constraint("Horizontal", 1))
sketch4.addConstraint(Sketcher.Constraint("Vertical", 2))
sketch4.addConstraint(Sketcher.Constraint("Horizontal", 3))
sketch4.addConstraint(Sketcher.Constraint("DistanceX", 1, 2, 1, 1, Q("5.7 mm")))
sketch4.addConstraint(Sketcher.Constraint("DistanceY", 0, 2, 0, 1, Q("2.7 mm")))
sketch4.addConstraint(Sketcher.Constraint("DistanceY", -1, 1, 0, 2, Q("3.8 mm")))
sketch4.addConstraint(Sketcher.Constraint("DistanceX", -1, 1, 0, 2, Q("2.85 mm")))
pocket2 = doc.addObject("PartDesign::Pocket", "Pocket001")
body.addObject(pocket2)
pocket2.Profile = sketch4
pocket2.Length = 7.05
pocket2.Reversed = True
doc.recompute()

mirrored = doc.addObject("PartDesign::Mirrored", "Mirrored")
body.addObject(mirrored)
mirrored.Originals = [pocket1, pocket2]
mirrored.MirrorPlane = (doc.XZ_Plane, [""])
body.Tip = mirrored

doc.recompute()
